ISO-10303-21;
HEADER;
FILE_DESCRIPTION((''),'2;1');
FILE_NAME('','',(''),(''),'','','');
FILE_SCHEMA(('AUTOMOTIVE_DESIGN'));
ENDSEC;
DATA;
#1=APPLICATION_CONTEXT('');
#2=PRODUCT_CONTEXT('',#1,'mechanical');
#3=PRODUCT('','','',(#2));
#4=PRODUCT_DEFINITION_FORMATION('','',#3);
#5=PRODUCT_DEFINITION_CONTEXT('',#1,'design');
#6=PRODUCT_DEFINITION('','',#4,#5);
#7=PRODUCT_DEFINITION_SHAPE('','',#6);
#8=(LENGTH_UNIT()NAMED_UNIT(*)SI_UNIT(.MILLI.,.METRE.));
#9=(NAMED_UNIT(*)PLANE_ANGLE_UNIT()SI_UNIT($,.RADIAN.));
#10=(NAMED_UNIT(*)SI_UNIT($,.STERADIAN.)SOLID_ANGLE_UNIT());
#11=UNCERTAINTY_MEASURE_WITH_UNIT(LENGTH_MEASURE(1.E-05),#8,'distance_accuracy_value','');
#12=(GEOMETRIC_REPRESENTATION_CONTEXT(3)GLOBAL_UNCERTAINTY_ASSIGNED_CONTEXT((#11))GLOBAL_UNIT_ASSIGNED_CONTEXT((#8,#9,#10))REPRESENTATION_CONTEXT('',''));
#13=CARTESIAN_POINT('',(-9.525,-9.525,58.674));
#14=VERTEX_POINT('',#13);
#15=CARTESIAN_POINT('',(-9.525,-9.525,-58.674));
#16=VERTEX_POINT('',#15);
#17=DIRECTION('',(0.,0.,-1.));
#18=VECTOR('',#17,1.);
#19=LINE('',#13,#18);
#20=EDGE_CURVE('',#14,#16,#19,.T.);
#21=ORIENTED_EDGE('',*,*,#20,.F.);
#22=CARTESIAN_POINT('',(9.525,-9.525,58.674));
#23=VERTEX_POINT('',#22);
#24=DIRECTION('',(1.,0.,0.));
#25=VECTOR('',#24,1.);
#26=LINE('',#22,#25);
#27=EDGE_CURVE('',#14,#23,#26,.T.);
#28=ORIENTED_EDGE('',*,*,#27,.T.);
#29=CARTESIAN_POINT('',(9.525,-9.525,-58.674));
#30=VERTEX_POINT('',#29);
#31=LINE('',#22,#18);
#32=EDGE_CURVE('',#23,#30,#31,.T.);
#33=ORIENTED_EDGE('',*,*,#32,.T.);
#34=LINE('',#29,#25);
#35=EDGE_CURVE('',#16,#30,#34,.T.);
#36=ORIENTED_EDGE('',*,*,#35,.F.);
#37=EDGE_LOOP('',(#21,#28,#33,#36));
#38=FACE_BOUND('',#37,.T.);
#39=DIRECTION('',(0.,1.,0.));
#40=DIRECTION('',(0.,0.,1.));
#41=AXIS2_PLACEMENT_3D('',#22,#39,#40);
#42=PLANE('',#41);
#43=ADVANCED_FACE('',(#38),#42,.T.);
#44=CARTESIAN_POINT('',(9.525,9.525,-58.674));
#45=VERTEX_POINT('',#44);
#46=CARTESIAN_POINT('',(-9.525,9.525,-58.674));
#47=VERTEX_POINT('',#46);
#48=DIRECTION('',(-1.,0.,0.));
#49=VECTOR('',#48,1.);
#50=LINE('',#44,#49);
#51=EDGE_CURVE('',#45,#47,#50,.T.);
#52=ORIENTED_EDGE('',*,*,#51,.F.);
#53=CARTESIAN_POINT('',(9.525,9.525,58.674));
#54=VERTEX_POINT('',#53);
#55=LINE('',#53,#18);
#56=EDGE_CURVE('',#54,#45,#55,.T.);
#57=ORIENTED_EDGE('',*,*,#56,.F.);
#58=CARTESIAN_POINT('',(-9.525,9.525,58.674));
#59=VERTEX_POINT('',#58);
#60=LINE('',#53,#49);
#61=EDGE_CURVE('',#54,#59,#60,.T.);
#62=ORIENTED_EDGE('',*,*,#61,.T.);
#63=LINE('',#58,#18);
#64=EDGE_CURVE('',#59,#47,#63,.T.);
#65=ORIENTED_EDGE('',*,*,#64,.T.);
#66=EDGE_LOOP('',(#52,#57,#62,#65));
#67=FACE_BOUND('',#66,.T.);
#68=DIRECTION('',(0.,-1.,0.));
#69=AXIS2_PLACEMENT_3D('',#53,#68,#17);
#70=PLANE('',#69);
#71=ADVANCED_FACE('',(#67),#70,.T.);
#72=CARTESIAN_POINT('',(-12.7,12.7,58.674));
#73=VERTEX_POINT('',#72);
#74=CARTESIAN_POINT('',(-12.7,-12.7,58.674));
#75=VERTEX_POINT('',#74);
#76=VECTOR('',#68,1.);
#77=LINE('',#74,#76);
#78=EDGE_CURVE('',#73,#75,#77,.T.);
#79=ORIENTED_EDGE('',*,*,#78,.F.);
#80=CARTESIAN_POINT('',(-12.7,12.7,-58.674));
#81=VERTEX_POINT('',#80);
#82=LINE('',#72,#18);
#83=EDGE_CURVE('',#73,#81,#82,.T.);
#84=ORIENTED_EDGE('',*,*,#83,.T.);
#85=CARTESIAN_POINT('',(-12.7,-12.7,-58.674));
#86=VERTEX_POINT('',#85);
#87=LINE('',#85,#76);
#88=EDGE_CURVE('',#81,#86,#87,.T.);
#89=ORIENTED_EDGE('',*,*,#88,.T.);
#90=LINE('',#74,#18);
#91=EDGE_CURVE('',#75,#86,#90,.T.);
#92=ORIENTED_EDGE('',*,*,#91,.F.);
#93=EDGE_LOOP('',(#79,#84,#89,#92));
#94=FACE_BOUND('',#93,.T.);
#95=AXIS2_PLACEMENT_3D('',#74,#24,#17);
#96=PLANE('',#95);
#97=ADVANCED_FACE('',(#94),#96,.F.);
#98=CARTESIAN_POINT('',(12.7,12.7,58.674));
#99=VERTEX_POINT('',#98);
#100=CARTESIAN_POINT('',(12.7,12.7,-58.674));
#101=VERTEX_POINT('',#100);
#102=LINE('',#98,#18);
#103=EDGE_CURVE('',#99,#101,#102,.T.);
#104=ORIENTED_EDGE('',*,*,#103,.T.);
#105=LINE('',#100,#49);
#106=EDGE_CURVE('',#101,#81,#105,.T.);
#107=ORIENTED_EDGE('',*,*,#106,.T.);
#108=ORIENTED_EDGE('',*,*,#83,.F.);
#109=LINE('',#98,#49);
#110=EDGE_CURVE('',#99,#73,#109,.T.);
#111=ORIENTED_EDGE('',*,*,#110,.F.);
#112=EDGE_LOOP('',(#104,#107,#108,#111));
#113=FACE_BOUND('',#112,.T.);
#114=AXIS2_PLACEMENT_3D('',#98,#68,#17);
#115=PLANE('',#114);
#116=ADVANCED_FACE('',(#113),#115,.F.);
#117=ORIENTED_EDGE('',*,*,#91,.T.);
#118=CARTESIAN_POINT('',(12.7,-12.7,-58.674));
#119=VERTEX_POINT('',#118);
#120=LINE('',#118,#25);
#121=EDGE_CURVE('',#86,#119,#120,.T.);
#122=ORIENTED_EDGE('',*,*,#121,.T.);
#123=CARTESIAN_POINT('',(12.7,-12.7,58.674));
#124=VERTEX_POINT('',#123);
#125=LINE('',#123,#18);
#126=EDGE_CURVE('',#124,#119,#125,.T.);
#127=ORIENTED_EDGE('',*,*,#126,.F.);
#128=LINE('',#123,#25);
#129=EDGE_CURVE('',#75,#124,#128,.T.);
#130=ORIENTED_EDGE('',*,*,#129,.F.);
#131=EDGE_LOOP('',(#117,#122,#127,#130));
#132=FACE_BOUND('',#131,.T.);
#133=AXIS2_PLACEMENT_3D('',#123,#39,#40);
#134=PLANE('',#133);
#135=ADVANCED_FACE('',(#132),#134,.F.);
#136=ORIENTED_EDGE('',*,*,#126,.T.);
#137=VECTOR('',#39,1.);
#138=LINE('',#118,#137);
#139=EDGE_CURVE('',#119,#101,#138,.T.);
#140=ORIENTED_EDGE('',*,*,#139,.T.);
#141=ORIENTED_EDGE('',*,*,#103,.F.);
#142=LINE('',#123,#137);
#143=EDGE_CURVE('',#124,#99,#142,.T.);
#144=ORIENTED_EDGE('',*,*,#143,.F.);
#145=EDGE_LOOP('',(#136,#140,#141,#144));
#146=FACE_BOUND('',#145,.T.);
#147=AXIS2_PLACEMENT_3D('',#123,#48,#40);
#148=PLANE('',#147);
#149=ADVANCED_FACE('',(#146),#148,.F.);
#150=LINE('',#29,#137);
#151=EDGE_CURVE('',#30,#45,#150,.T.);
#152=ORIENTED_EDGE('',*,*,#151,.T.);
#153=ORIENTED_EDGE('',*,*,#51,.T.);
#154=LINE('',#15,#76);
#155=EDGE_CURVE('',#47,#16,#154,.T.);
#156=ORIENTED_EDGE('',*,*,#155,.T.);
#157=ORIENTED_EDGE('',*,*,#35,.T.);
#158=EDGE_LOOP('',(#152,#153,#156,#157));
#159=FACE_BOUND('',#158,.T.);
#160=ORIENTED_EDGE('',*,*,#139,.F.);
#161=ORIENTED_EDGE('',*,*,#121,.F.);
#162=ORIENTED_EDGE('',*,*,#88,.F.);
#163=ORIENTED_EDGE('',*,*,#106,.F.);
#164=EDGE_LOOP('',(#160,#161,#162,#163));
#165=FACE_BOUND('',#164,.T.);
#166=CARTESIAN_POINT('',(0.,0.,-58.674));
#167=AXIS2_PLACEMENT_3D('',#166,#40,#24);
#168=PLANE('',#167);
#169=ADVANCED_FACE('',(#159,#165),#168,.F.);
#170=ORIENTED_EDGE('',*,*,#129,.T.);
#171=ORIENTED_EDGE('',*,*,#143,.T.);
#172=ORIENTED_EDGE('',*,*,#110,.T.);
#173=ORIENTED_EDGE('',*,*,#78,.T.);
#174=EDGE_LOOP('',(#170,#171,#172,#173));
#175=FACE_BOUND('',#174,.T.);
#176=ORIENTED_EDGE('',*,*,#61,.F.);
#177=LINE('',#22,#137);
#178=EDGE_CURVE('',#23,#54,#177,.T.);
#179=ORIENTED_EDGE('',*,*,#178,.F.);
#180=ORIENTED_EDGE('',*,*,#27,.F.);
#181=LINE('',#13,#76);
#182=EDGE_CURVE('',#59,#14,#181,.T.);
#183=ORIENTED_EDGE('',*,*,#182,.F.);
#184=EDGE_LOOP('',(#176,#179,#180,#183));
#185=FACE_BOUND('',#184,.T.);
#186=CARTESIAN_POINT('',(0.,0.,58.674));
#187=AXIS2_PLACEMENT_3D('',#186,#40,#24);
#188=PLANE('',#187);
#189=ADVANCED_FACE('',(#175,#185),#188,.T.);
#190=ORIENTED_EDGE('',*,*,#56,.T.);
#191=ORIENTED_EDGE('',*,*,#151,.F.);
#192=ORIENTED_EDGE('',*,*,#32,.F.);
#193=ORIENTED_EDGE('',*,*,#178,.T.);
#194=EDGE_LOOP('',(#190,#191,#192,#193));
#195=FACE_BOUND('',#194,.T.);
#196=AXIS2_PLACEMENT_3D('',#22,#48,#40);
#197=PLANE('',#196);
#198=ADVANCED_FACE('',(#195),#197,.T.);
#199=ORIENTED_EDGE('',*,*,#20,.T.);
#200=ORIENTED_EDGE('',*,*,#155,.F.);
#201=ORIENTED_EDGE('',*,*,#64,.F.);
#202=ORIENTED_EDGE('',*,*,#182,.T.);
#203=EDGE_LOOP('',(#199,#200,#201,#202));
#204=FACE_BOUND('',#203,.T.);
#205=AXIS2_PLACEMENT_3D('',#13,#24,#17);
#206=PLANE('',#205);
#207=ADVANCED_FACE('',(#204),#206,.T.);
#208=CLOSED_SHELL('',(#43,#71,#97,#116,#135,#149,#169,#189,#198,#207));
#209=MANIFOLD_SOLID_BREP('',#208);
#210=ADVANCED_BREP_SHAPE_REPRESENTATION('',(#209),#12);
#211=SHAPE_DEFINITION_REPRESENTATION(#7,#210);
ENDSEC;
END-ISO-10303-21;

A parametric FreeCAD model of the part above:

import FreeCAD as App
import Part
import Sketcher
from FreeCAD import Vector
Q = App.Units.Quantity


def add_polygon(sketch, points):
    """Adds a closed chain of lines whose ends are joined by coincident constraints."""
    first, n = sketch.GeometryCount, len(points)
    for a, b in zip(points, points[1:] + points[:1]):
        sketch.addGeometry(Part.LineSegment(App.Vector(*a, 0), App.Vector(*b, 0)), False)
    for i in range(n):
        sketch.addConstraint(Sketcher.Constraint("Coincident", first + i, 2, first + (i + 1) % n, 1))

doc = App.newDocument("Part")
body = doc.addObject("PartDesign::Body", "Body")

# Sketch on XY plane
sketch1 = body.newObject("Sketcher::SketchObject", "Sketch")
sketch1.AttachmentSupport = (doc.getObject("XY_Plane"), [""])
sketch1.MapMode = "FlatFace"
add_polygon(sketch1, [(-13, 13), (-13, -13), (13, -13), (13, 13)])  # lines 0-3
add_polygon(sketch1, [(10, -10), (-10, -10), (-10, 10), (10, 10)])  # lines 4-7
sketch1.addConstraint(Sketcher.Constraint("Vertical", 0))
sketch1.addConstraint(Sketcher.Constraint("Horizontal", 1))
sketch1.addConstraint(Sketcher.Constraint("Vertical", 2))
sketch1.addConstraint(Sketcher.Constraint("Horizontal", 3))
sketch1.addConstraint(Sketcher.Constraint("Horizontal", 4))
sketch1.addConstraint(Sketcher.Constraint("Vertical", 5))
sketch1.addConstraint(Sketcher.Constraint("Horizontal", 6))
sketch1.addConstraint(Sketcher.Constraint("Vertical", 7))
sketch1.addConstraint(Sketcher.Constraint("Symmetric", 0, 2, 2, 2, -1, 1))
sketch1.addConstraint(Sketcher.Constraint("Symmetric", 4, 2, 6, 2, -1, 1))
sketch1.addConstraint(Sketcher.Constraint("Equal", 3, 0))
sketch1.addConstraint(Sketcher.Constraint("Equal", 6, 5))
sketch1.addConstraint(Sketcher.Constraint("DistanceX", 1, 1, 1, 2, Q("1 in")))
sketch1.addConstraint(Sketcher.Constraint("DistanceX", 4, 2, 4, 1, Q("0.75 in")))
pad1 = body.newObject("PartDesign::Pad", "Pad")
pad1.Profile = sketch1
pad1.Type = "TwoLengths"
pad1.Length = Q("2.31 in")
pad1.Length2 = Q("2.31 in")

doc.recompute()
